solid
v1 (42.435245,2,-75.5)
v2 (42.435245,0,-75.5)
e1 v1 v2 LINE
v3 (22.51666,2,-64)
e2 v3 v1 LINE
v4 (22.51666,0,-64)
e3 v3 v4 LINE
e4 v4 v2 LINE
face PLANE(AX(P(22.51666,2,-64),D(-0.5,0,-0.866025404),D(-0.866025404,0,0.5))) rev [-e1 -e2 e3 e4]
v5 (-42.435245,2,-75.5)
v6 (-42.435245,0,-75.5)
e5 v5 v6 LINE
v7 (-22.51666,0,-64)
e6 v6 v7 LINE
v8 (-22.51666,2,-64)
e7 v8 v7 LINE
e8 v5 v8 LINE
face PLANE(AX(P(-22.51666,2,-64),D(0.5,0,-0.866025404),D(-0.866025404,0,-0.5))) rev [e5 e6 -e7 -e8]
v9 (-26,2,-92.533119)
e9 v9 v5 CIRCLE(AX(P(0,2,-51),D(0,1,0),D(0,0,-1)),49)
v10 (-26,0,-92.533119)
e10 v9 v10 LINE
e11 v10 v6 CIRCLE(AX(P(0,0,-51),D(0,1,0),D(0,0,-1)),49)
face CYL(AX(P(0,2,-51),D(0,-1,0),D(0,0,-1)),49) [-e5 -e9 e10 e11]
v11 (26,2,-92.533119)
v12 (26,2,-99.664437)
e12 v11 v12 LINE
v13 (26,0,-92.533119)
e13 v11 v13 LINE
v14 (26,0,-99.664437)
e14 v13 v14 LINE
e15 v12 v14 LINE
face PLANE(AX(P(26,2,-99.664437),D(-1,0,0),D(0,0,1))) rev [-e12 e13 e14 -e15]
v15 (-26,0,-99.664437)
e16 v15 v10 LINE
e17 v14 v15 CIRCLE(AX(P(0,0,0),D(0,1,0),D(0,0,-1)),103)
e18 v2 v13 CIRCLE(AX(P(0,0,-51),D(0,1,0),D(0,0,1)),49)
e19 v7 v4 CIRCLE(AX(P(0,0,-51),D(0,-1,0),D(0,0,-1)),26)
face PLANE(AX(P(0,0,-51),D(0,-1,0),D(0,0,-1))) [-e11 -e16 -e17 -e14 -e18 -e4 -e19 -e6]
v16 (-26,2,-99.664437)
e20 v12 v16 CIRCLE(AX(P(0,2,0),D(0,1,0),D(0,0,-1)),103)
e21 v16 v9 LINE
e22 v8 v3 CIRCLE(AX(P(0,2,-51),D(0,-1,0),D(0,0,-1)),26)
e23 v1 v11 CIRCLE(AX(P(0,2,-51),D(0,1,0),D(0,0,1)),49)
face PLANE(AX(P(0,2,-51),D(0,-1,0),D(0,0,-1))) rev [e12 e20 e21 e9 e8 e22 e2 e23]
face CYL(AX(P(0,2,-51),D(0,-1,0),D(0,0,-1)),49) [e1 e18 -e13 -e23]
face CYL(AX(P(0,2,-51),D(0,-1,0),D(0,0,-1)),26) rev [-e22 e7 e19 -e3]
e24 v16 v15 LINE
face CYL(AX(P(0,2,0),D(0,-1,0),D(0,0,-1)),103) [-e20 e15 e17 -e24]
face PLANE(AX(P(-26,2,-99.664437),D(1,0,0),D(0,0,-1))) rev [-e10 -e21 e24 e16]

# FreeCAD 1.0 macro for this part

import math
import FreeCAD as App
import Part
import Sketcher
from FreeCAD import Vector
Q = App.Units.Quantity

doc = App.newDocument("Part")
body = doc.addObject("PartDesign::Body", "Body")

# Sketch on XZ plane
sketch1 = doc.addObject("Sketcher::SketchObject", "Sketch")
body.addObject(sketch1)
sketch1.AttachmentSupport = (doc.XZ_Plane, [""])
sketch1.MapMode = "FlatFace"
sketch1.addGeometry([
    Part.LineSegment(Vector(-26, -100, 0), Vector(-26, -93, 0)),  # 0
    Part.ArcOfCircle(Part.Circle(Vector(0, -51, 0), Vector(0, 0, 1), 49), math.radians(-150), math.radians(-122)),  # 1
    Part.LineSegment(Vector(-42, -76, 0), Vector(-23, -64, 0)),  # 2
    Part.ArcOfCircle(Part.Circle(Vector(0, -51, 0), Vector(0, 0, 1), 26), math.radians(-150), math.radians(-30)),  # 3
    Part.LineSegment(Vector(23, -64, 0), Vector(42, -76, 0)),  # 4
    Part.ArcOfCircle(Part.Circle(Vector(0, -51, 0), Vector(0, 0, 1), 49), math.radians(-58), math.radians(-30)),  # 5
    Part.LineSegment(Vector(26, -93, 0), Vector(26, -100, 0)),  # 6
    Part.ArcOfCircle(Part.Circle(Vector(0, 0, 0), Vector(0, 0, 1), 103), math.radians(-105), math.radians(-75)),  # 7
], False)
sketch1.addConstraint([
    Sketcher.Constraint("Coincident", 0, 2, 1, 2),
    Sketcher.Constraint("Coincident", 1, 1, 2, 1),
    Sketcher.Constraint("Coincident", 2, 2, 3, 1),
    Sketcher.Constraint("Coincident", 3, 2, 4, 1),
    Sketcher.Constraint("Coincident", 4, 2, 5, 2),
    Sketcher.Constraint("Coincident", 5, 1, 6, 1),
    Sketcher.Constraint("Coincident", 6, 2, 7, 2),
    Sketcher.Constraint("Coincident", 7, 1, 0, 1),
    Sketcher.Constraint("Vertical", 0),
    Sketcher.Constraint("Vertical", 6),
    Sketcher.Constraint("Coincident", 7, 3, -1, 1),
    Sketcher.Constraint("Coincident", 3, 3, 1, 3),
    Sketcher.Constraint("Coincident", 5, 3, 1, 3),
    Sketcher.Constraint("Equal", 1, 5),
    Sketcher.Constraint("Symmetric", 2, 2, 3, 2, -2),
    Sketcher.Constraint("Horizontal", 1, 1, 4, 2),
    Sketcher.Constraint("Horizontal", 0, 2, 5, 1),
    Sketcher.Constraint("Radius", 1, 49.0),
    Sketcher.Constraint("Radius", 3, 26.0),
    Sketcher.Constraint("Radius", 7, 103.0),
    Sketcher.Constraint("Angle", 2, Q("30 deg")),
    Sketcher.Constraint("DistanceY", 1, 3, -1, 1, 51.0),
    Sketcher.Constraint("DistanceX", 0, 2, -1, 1, 26.0),
    Sketcher.Constraint("DistanceY", 2, 2, -1, 1, 64.0),
])
pad1 = doc.addObject("PartDesign::Pad", "Pad")
body.addObject(pad1)
pad1.Profile = sketch1
pad1.Length = 2
pad1.Reversed = True

doc.recompute()
